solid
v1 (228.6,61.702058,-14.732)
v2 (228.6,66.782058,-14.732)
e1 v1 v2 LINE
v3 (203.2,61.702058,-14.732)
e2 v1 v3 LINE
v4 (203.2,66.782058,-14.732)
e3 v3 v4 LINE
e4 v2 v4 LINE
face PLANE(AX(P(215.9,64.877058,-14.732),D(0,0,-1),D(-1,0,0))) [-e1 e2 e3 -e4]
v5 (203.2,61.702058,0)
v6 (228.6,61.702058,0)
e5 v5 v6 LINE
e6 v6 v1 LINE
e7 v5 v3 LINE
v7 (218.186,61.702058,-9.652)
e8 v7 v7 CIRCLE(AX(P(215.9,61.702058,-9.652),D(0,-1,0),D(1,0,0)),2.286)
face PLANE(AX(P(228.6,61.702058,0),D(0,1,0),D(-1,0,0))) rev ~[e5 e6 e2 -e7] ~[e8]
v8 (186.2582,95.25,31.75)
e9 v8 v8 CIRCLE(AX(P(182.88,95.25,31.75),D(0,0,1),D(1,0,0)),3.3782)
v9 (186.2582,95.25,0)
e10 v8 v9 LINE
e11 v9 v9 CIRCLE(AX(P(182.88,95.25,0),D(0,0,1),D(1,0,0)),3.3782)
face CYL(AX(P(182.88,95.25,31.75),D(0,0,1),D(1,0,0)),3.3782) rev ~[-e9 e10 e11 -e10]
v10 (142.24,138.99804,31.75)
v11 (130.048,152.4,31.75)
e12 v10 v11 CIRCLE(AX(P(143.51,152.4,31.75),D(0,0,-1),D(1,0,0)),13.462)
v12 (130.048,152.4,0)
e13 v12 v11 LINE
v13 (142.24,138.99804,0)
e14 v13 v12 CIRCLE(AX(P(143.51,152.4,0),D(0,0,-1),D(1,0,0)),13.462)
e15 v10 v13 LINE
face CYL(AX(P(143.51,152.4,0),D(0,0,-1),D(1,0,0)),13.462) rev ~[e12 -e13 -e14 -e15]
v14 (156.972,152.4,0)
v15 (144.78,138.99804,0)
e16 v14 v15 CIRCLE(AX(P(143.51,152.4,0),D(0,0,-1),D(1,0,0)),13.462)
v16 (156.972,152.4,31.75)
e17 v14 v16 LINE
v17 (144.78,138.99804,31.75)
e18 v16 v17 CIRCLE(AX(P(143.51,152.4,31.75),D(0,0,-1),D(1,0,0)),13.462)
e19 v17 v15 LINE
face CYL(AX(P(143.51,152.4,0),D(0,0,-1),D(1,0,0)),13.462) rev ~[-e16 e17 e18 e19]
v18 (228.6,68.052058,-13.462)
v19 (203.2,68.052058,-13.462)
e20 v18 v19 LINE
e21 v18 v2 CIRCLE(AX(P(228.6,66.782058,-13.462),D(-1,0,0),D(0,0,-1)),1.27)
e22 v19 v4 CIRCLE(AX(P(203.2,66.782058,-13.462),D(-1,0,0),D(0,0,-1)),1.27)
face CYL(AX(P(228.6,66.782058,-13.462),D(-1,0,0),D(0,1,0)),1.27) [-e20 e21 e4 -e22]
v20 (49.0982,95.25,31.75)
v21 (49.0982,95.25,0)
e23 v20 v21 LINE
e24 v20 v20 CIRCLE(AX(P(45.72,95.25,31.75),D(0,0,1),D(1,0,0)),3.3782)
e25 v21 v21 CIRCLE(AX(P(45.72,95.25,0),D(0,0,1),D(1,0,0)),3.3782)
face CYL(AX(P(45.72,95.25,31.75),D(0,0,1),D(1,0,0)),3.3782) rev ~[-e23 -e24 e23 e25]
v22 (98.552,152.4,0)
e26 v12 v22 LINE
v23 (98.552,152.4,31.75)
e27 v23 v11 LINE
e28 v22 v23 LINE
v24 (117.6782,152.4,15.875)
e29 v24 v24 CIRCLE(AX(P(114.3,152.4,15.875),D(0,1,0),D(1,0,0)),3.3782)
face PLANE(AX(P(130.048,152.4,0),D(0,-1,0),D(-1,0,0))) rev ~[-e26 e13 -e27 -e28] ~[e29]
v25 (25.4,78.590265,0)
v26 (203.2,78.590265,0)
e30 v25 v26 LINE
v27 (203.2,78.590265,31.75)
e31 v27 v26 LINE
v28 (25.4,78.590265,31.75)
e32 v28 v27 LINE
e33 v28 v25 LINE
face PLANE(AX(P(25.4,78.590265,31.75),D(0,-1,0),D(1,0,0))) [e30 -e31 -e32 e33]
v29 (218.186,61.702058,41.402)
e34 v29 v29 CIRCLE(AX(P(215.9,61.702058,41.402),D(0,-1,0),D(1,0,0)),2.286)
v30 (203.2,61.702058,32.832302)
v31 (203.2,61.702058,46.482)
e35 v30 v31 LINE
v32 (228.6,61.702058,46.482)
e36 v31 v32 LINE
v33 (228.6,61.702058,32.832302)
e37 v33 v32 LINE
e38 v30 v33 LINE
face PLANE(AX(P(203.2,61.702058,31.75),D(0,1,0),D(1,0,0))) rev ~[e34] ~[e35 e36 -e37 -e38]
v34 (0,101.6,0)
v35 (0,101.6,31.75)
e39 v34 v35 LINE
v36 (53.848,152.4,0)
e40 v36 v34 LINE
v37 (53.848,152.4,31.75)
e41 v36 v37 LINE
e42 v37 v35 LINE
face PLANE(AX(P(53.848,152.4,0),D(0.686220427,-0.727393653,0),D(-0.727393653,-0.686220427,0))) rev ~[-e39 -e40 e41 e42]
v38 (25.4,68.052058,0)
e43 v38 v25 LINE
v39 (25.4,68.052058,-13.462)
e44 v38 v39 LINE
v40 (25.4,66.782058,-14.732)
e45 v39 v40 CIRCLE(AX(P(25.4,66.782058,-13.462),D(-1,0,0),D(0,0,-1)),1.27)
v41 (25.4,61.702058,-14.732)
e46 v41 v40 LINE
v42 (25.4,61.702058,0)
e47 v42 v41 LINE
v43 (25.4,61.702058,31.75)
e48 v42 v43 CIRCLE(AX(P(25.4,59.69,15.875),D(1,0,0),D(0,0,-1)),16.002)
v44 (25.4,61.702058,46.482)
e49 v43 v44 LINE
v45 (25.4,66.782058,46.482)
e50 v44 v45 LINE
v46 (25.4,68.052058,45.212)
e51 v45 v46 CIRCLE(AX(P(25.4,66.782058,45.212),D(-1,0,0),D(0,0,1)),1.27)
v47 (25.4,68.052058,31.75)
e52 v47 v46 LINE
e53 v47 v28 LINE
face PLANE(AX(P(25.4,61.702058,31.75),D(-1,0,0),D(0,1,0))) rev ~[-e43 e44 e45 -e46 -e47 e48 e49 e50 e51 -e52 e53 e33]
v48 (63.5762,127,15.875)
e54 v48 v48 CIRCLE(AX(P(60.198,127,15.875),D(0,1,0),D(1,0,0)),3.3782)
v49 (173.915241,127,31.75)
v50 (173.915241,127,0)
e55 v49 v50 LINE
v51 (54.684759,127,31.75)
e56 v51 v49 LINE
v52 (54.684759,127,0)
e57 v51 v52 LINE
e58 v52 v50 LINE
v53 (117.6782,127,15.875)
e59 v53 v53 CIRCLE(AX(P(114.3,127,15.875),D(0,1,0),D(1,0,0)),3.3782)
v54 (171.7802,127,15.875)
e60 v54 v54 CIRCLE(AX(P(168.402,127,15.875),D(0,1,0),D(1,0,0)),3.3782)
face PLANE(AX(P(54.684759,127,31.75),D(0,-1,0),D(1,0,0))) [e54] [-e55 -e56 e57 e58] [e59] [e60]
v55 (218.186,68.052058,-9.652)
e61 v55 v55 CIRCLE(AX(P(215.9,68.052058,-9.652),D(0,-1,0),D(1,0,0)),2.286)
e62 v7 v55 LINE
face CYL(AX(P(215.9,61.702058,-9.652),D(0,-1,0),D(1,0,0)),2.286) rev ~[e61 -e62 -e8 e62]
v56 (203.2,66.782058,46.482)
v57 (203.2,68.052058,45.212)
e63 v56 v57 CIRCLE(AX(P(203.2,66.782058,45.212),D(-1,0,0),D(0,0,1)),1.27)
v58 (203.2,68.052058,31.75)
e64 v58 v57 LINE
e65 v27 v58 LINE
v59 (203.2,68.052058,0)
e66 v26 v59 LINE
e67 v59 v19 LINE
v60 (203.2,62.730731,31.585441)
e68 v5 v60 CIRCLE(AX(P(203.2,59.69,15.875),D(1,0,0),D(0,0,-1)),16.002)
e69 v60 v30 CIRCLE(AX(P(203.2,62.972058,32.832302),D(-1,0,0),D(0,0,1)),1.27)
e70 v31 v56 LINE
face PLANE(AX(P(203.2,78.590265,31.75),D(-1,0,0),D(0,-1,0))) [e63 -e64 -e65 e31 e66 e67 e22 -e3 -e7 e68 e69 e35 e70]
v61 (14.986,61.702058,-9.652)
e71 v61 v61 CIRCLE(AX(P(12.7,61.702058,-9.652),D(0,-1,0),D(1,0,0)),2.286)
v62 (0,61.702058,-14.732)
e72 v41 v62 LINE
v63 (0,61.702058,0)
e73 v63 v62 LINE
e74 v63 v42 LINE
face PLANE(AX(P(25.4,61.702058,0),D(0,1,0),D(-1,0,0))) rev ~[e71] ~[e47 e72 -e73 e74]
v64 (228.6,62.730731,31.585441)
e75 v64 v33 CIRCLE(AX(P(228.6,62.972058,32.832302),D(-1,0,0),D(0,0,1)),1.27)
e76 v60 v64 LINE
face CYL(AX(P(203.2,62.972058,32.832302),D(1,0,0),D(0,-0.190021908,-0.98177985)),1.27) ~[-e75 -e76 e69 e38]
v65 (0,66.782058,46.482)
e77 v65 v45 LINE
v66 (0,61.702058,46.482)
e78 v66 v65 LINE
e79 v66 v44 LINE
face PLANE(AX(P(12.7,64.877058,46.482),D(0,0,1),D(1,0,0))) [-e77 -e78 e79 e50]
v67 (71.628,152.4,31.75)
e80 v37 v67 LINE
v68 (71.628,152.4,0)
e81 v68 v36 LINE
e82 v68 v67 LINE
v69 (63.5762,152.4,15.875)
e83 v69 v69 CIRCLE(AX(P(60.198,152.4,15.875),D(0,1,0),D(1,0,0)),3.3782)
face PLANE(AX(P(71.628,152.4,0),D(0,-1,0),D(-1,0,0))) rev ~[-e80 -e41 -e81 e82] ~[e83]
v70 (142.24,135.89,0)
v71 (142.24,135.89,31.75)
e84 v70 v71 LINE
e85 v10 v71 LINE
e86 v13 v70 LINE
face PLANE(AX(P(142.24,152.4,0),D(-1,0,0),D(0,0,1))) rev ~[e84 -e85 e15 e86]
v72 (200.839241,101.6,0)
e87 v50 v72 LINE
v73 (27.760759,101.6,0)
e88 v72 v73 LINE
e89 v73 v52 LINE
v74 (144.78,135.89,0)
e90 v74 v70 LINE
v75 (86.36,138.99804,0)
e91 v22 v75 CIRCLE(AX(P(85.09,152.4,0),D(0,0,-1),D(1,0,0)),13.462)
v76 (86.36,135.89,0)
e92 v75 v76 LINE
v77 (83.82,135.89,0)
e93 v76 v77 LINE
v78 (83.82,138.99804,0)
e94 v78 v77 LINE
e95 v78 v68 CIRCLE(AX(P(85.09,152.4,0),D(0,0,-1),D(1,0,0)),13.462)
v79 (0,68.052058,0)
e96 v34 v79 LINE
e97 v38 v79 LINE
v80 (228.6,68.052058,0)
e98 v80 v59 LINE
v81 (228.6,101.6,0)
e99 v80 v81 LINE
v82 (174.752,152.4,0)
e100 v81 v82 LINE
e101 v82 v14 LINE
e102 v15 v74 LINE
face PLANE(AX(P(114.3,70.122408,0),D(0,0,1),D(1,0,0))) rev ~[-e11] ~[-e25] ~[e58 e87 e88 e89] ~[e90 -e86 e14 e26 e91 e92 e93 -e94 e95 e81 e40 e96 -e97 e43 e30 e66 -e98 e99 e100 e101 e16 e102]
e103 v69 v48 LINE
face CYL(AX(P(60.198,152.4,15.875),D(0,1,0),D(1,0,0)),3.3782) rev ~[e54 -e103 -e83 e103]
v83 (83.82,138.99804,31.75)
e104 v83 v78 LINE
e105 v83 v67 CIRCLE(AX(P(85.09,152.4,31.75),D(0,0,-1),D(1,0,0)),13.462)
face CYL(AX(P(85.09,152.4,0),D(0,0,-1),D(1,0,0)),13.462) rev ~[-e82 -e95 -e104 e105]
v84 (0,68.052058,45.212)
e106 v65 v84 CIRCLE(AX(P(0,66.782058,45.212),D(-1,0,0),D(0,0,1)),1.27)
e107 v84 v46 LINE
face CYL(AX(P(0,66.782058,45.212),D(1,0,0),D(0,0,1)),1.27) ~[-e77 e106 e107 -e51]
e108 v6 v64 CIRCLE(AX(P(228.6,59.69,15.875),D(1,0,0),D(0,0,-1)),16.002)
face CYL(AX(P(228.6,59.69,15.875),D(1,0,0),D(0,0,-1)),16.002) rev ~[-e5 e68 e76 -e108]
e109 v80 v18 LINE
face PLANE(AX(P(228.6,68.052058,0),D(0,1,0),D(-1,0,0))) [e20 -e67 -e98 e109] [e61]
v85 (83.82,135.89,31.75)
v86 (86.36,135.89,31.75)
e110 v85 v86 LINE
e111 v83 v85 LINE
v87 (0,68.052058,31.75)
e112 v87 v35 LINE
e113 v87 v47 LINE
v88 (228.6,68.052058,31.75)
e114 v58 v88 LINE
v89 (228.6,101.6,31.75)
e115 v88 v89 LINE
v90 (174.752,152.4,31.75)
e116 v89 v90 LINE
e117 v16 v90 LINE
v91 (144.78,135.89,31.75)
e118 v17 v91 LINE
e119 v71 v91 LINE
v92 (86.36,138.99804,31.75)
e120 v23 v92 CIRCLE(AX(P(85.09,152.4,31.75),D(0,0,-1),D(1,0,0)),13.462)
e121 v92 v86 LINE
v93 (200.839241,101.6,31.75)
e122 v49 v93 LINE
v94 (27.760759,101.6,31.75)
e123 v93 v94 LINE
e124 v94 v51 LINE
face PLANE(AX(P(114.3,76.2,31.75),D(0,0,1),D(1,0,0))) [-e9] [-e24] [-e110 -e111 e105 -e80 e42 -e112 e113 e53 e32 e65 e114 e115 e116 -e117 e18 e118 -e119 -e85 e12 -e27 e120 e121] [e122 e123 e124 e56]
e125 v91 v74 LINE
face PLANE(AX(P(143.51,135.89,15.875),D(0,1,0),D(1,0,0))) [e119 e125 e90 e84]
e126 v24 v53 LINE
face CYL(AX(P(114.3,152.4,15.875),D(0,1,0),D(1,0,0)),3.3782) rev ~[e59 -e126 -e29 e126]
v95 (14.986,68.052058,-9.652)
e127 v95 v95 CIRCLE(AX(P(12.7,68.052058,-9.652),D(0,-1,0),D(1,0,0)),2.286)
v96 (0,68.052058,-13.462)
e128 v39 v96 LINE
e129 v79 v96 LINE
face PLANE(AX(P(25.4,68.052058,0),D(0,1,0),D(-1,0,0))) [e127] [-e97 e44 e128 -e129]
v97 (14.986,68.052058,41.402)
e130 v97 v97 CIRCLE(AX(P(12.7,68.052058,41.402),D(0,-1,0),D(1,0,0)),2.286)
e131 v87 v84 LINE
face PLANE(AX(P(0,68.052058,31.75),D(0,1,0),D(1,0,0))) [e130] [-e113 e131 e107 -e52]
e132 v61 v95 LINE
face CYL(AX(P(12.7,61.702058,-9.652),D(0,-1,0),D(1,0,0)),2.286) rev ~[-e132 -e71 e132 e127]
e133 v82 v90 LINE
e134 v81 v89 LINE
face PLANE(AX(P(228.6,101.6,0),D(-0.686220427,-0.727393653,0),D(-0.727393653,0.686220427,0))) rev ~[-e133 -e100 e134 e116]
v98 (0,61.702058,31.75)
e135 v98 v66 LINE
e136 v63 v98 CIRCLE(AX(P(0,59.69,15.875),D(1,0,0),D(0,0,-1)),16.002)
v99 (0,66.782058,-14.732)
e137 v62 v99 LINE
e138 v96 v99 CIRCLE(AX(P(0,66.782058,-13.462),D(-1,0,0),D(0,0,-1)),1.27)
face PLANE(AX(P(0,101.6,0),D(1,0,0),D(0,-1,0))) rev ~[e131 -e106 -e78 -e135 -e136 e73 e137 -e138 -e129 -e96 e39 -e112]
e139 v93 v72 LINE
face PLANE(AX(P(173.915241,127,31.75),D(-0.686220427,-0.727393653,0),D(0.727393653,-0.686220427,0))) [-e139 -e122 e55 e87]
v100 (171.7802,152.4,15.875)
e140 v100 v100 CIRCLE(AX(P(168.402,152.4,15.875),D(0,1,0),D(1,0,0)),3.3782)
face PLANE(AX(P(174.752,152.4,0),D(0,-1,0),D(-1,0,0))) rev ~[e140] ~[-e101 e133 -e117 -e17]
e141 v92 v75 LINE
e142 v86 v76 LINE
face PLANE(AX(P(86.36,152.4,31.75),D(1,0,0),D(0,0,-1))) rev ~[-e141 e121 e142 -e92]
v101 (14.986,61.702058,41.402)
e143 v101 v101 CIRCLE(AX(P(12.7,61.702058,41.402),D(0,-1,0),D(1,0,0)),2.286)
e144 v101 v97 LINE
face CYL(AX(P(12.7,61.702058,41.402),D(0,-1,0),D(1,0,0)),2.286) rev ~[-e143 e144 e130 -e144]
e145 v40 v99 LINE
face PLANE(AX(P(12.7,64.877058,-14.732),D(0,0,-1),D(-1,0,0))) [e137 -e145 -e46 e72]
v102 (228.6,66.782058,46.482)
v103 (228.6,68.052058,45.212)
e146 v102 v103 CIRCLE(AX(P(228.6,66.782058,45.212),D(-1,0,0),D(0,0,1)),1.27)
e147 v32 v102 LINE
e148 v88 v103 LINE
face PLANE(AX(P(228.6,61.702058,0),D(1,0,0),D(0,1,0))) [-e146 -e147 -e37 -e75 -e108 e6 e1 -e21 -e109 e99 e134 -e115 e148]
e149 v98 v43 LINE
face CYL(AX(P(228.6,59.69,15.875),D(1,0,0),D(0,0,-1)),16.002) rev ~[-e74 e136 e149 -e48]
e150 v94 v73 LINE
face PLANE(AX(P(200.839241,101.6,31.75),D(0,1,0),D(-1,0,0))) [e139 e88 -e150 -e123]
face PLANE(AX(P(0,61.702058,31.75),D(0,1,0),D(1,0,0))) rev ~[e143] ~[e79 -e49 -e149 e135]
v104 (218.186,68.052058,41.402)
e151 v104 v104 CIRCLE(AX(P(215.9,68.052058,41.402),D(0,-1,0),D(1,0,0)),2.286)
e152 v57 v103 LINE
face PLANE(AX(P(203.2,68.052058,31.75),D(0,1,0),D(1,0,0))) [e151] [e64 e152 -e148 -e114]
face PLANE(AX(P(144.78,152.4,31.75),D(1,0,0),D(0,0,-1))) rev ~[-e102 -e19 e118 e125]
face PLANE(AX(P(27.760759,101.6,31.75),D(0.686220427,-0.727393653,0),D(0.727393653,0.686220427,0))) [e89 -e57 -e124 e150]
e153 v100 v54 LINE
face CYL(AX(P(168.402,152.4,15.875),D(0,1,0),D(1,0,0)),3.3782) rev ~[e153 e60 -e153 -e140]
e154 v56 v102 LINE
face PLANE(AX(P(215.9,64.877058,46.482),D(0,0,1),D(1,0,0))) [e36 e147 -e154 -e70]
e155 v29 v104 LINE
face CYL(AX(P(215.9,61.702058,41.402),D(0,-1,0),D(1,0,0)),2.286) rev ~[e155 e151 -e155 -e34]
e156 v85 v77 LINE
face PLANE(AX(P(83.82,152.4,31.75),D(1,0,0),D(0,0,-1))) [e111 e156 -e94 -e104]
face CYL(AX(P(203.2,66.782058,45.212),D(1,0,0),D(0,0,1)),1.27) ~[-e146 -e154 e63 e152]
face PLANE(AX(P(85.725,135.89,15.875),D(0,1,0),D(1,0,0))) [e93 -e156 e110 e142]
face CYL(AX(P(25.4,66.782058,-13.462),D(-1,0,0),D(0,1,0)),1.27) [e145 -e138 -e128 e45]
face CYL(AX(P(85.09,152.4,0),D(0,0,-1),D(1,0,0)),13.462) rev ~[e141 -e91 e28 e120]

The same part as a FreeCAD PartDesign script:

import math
import FreeCAD as App
import Part
import Sketcher
from FreeCAD import Vector
Q = App.Units.Quantity


def edges_at(feature, points):
    """Names of the edges that pass closest to the given points."""
    edges = feature.Shape.Edges
    near = lambda p: min(range(len(edges)), key=lambda i: edges[i].distToShape(Part.Vertex(*p))[0])
    return sorted({f"Edge{near(p) + 1}" for p in points})

doc = App.newDocument("Part")
params = doc.addObject("Spreadsheet::Sheet", "Params")
for row, (alias, value) in enumerate([
    ("sketch1_width", "9 in"),
    ("sketch1_height", "4 in"),
    ("sketch1_radius", "0.53 in"),
    ("sketch1_width2", "0.7 in"),
    ("pad1_length", "2 in"),
    ("sketch2_width", "9 in"),
    ("sketch2_height", "6 in"),
    ("pocket1_length", "0.75 in"),
    ("sketch3_diameter", "0.266 in"),
    ("pocket2_length", "1.1 in"),
    ("pocket3_length", "1.6 in"),
    ("sketch5_width", "0.1 in"),
    ("sketch5_height", "1.25 in"),
    ("pocket4_length", "0.65 in"),
    ("sketch6_diameter", "0.266 in"),
    ("sketch7_diameter", "0.266 in"),
    ("sketch8_width", "9 in"),
    ("sketch8_height", "2.35 in"),
    ("sketch9_diameter", "1.26 in"),
    ("sketch10_width", "1 in"),
    ("sketch10_height", "0.25 in"),
    ("pad2_length", "0.58 in"),
    ("sketch11_width", "1 in"),
    ("sketch11_height", "0.25 in"),
    ("pad3_length", "0.58 in"),
    ("fillet_radius", "0.05 in"),
    ("fillet2_radius", "0.05 in"),
    ("fillet3_radius", "0.05 in"),
    ("fillet4_radius", "0.05 in"),
    ("sketch12_width", "7 in"),
    ("fillet5_radius", "0.05 in"),
    ("sketch13_diameter", "0.18 in"),
], start=1):
    params.set(f"A{row}", alias)
    params.set(f"B{row}", "=" + value)
    params.setAlias(f"B{row}", alias)

body = doc.addObject("PartDesign::Body", "Body")

sketch1 = doc.addObject("Sketcher::SketchObject", "Sketch")
body.addObject(sketch1)
sketch1.AttachmentSupport = (doc.XY_Plane, [""])
sketch1.MapMode = "FlatFace"
sketch1.addGeometry([
    Part.LineSegment(Vector(228.6, 0, 0), Vector(228.6, 101.6, 0)),
    Part.LineSegment(Vector(228.6, 101.6, 0), Vector(174.752, 152.4, 0)),
    Part.LineSegment(Vector(174.752, 152.4, 0), Vector(156.972, 152.4, 0)),
    Part.ArcOfCircle(Part.Circle(Vector(143.51, 152.4, 0), Vector(0, 0, 1), 13.462), math.radians(180), math.radians(360)),
    Part.LineSegment(Vector(130.048, 152.4, 0), Vector(98.552, 152.4, 0)),
    Part.ArcOfCircle(Part.Circle(Vector(85.09, 152.4, 0), Vector(0, 0, 1), 13.462), math.radians(180), math.radians(360)),
    Part.LineSegment(Vector(71.628, 152.4, 0), Vector(53.848, 152.4, 0)),
    Part.LineSegment(Vector(53.848, 152.4, 0), Vector(0, 101.6, 0)),
    Part.LineSegment(Vector(0, 101.6, 0), Vector(0, 0, 0)),
    Part.LineSegment(Vector(0, 0, 0), Vector(228.6, 0, 0)),
], False)
sketch1.addConstraint([
    Sketcher.Constraint("Coincident", 0, 2, 1, 1),
    Sketcher.Constraint("Coincident", 1, 2, 2, 1),
    Sketcher.Constraint("Coincident", 2, 2, 3, 2),
    Sketcher.Constraint("Coincident", 3, 1, 4, 1),
    Sketcher.Constraint("Coincident", 4, 2, 5, 2),
    Sketcher.Constraint("Coincident", 5, 1, 6, 1),
    Sketcher.Constraint("Coincident", 6, 2, 7, 1),
    Sketcher.Constraint("Coincident", 7, 2, 8, 1),
    Sketcher.Constraint("Coincident", 8, 2, 9, 1),
    Sketcher.Constraint("Coincident", 9, 2, 0, 1),
    Sketcher.Constraint("Vertical", 0),
    Sketcher.Constraint("Horizontal", 2),
    Sketcher.Constraint("Horizontal", 4),
    Sketcher.Constraint("Horizontal", 6),
    Sketcher.Constraint("Vertical", 8),
    Sketcher.Constraint("Horizontal", 9),
    Sketcher.Constraint("Coincident", 8, 2, -1, 1),
    Sketcher.Constraint("Equal", 3, 5),
    Sketcher.Constraint("Horizontal", 3, 3, 5, 3),
    Sketcher.Constraint("Horizontal", 5, 3, 1, 2),
    Sketcher.Constraint("Horizontal", 2, 2, 3, 1),
    Sketcher.Constraint("Horizontal", 4, 2, 5, 1),
    Sketcher.Constraint("Horizontal", 0, 2, 7, 2),
    Sketcher.Constraint("Equal", 2, 6),
    Sketcher.Constraint("Equal", 1, 7),
    Sketcher.Constraint("DistanceX", 9, 1, 9, 2, Q("9 in")),
    Sketcher.Constraint("DistanceY", 0, 1, 0, 2, Q("4 in")),
    Sketcher.Constraint("Radius", 3, Q("0.53 in")),
    Sketcher.Constraint("DistanceX", 2, 2, 2, 1, Q("0.7 in")),
    Sketcher.Constraint("DistanceY", -1, 1, 3, 3, Q("6 in")),
    Sketcher.Constraint("DistanceX", 4, 2, 1, 2, Q("3 in")),
])
sketch1.setExpression("Constraints[25]", "Params.sketch1_width")
sketch1.setExpression("Constraints[26]", "Params.sketch1_height")
sketch1.setExpression("Constraints[27]", "Params.sketch1_radius")
sketch1.setExpression("Constraints[28]", "Params.sketch1_width2")
pad1 = doc.addObject("PartDesign::Pad", "Pad")
body.addObject(pad1)
pad1.Profile = sketch1
pad1.setExpression("Length", "Params.pad1_length")

sketch2 = doc.addObject("Sketcher::SketchObject", "Sketch001")
body.addObject(sketch2)
sketch2.AttachmentSupport = (doc.XY_Plane, [""])
sketch2.MapMode = "FlatFace"
sketch2.AttachmentOffset = App.Placement(Vector(0, 0, 2 * 25.4), App.Rotation())
sketch2.addGeometry([
    Part.LineSegment(Vector(0, 152.4, 0), Vector(0, 0, 0)),
    Part.LineSegment(Vector(0, 0, 0), Vector(228.6, 0, 0)),
    Part.LineSegment(Vector(228.6, 0, 0), Vector(228.6, 152.4, 0)),
    Part.LineSegment(Vector(228.6, 152.4, 0), Vector(0, 152.4, 0)),
], False)
sketch2.addConstraint([
    Sketcher.Constraint("Coincident", 0, 2, 1, 1),
    Sketcher.Constraint("Coincident", 1, 2, 2, 1),
    Sketcher.Constraint("Coincident", 2, 2, 3, 1),
    Sketcher.Constraint("Coincident", 3, 2, 0, 1),
    Sketcher.Constraint("Vertical", 0),
    Sketcher.Constraint("Horizontal", 1),
    Sketcher.Constraint("Vertical", 2),
    Sketcher.Constraint("Horizontal", 3),
    Sketcher.Constraint("Coincident", 0, 2, -1, 1),
    Sketcher.Constraint("DistanceX", 1, 1, 1, 2, Q("9 in")),
    Sketcher.Constraint("DistanceY", 0, 2, 0, 1, Q("6 in")),
])
sketch2.setExpression("Constraints[9]", "Params.sketch2_width")
sketch2.setExpression("Constraints[10]", "Params.sketch2_height")
pocket1 = doc.addObject("PartDesign::Pocket", "Pocket")
body.addObject(pocket1)
pocket1.Profile = sketch2
pocket1.setExpression("Length", "Params.pocket1_length")

sketch3 = doc.addObject("Sketcher::SketchObject", "Sketch002")
body.addObject(sketch3)
sketch3.AttachmentSupport = (doc.XZ_Plane, [""])
sketch3.MapMode = "FlatFace"
sketch3.AttachmentOffset = App.Placement(Vector(0, 0, -6 * 25.4), App.Rotation())
sketch3.addGeometry([
    Part.Circle(Vector(60.198, 15.875, 0), Vector(0, 0, 1), 3.3782),
    Part.Circle(Vector(114.3, 15.875, 0), Vector(0, 0, 1), 3.3782),
    Part.Circle(Vector(168.402, 15.875, 0), Vector(0, 0, 1), 3.3782),
], False)
sketch3.addConstraint([
    Sketcher.Constraint("Equal", 0, 1),
    Sketcher.Constraint("Equal", 1, 2),
    Sketcher.Constraint("Horizontal", 0, 3, 1, 3),
    Sketcher.Constraint("Horizontal", 1, 3, 2, 3),
    Sketcher.Constraint("Diameter", 0, Q("0.266 in")),
    Sketcher.Constraint("DistanceX", -1, 1, 1, 3, Q("4.5 in")),
    Sketcher.Constraint("DistanceX", -1, 1, 0, 3, Q("2.37 in")),
    Sketcher.Constraint("DistanceX", -1, 1, 2, 3, Q("6.63 in")),
    Sketcher.Constraint("DistanceY", -1, 1, 0, 3, Q("0.625 in")),
])
sketch3.setExpression("Constraints[4]", "Params.sketch3_diameter")
pocket2 = doc.addObject("PartDesign::Pocket", "Pocket001")
body.addObject(pocket2)
pocket2.Profile = sketch3
pocket2.setExpression("Length", "Params.pocket2_length")
pocket2.Reversed = True

sketch4 = doc.addObject("Sketcher::SketchObject", "Sketch003")
body.addObject(sketch4)
sketch4.AttachmentSupport = (doc.XY_Plane, [""])
sketch4.MapMode = "FlatFace"
sketch4.AttachmentOffset = App.Placement(Vector(0, 0, 1.25 * 25.4), App.Rotation())
sketch4.addGeometry([
    Part.LineSegment(Vector(54.684759, 127, 0), Vector(27.760759, 101.6, 0)),
    Part.LineSegment(Vector(27.760759, 101.6, 0), Vector(200.839241, 101.6, 0)),
    Part.LineSegment(Vector(200.839241, 101.6, 0), Vector(173.915241, 127, 0)),
    Part.LineSegment(Vector(173.915241, 127, 0), Vector(54.684759, 127, 0)),
], False)
sketch4.addConstraint([
    Sketcher.Constraint("Coincident", 0, 2, 1, 1),
    Sketcher.Constraint("Coincident", 1, 2, 2, 1),
    Sketcher.Constraint("Coincident", 2, 2, 3, 1),
    Sketcher.Constraint("Coincident", 3, 2, 0, 1),
    Sketcher.Constraint("Horizontal", 1),
    Sketcher.Constraint("Horizontal", 3),
    Sketcher.Constraint("Equal", 0, 2),
    Sketcher.Constraint("DistanceY", -1, 1, 0, 2, Q("4 in")),
    Sketcher.Constraint("DistanceY", -1, 1, 2, 2, Q("5 in")),
    Sketcher.Constraint("DistanceX", 2, 2, 1, 2, Q("1.06 in")),
    Sketcher.Constraint("DistanceX", 1, 1, 1, 2, 173.078482),
    Sketcher.Constraint("DistanceX", -1, 1, 0, 2, 27.760759),
])
pocket3 = doc.addObject("PartDesign::Pocket", "Pocket002")
body.addObject(pocket3)
pocket3.Profile = sketch4
pocket3.setExpression("Length", "Params.pocket3_length")

sketch5 = doc.addObject("Sketcher::SketchObject", "Sketch004")
body.addObject(sketch5)
sketch5.AttachmentSupport = (doc.XZ_Plane, [""])
sketch5.MapMode = "FlatFace"
sketch5.AttachmentOffset = App.Placement(Vector(0, 0, -6 * 25.4), App.Rotation())
sketch5.addGeometry([
    Part.LineSegment(Vector(86.36, 31.75, 0), Vector(86.36, 0, 0)),
    Part.LineSegment(Vector(86.36, 0, 0), Vector(83.82, 0, 0)),
    Part.LineSegment(Vector(83.82, 0, 0), Vector(83.82, 31.75, 0)),
    Part.LineSegment(Vector(83.82, 31.75, 0), Vector(86.36, 31.75, 0)),
    Part.LineSegment(Vector(142.24, 0, 0), Vector(142.24, 31.75, 0)),
    Part.LineSegment(Vector(142.24, 31.75, 0), Vector(144.78, 31.75, 0)),
    Part.LineSegment(Vector(144.78, 31.75, 0), Vector(144.78, 0, 0)),
    Part.LineSegment(Vector(144.78, 0, 0), Vector(142.24, 0, 0)),
], False)
sketch5.addConstraint([
    Sketcher.Constraint("Coincident", 0, 2, 1, 1),
    Sketcher.Constraint("Coincident", 1, 2, 2, 1),
    Sketcher.Constraint("Coincident", 2, 2, 3, 1),
    Sketcher.Constraint("Coincident", 3, 2, 0, 1),
    Sketcher.Constraint("Coincident", 4, 2, 5, 1),
    Sketcher.Constraint("Coincident", 5, 2, 6, 1),
    Sketcher.Constraint("Coincident", 6, 2, 7, 1),
    Sketcher.Constraint("Coincident", 7, 2, 4, 1),
    Sketcher.Constraint("Vertical", 0),
    Sketcher.Constraint("Horizontal", 1),
    Sketcher.Constraint("Vertical", 2),
    Sketcher.Constraint("Horizontal", 3),
    Sketcher.Constraint("Vertical", 4),
    Sketcher.Constraint("Horizontal", 5),
    Sketcher.Constraint("Vertical", 6),
    Sketcher.Constraint("Horizontal", 7),
    Sketcher.Constraint("PointOnObject", 0, 2, -1),
    Sketcher.Constraint("PointOnObject", 6, 2, -1),
    Sketcher.Constraint("Horizontal", 3, 2, 4, 2),
    Sketcher.Constraint("Equal", 3, 5),
    Sketcher.Constraint("DistanceX", 1, 2, 1, 1, Q("0.1 in")),
    Sketcher.Constraint("DistanceY", 0, 2, 0, 1, Q("1.25 in")),
    Sketcher.Constraint("DistanceX", -1, 1, 0, 2, Q("3.4 in")),
    Sketcher.Constraint("DistanceX", -1, 1, 4, 2, Q("5.6 in")),
])
sketch5.setExpression("Constraints[20]", "Params.sketch5_width")
sketch5.setExpression("Constraints[21]", "Params.sketch5_height")
pocket4 = doc.addObject("PartDesign::Pocket", "Pocket003")
body.addObject(pocket4)
pocket4.Profile = sketch5
pocket4.setExpression("Length", "Params.pocket4_length")
pocket4.Reversed = True

sketch6 = doc.addObject("Sketcher::SketchObject", "Sketch005")
body.addObject(sketch6)
sketch6.AttachmentSupport = (doc.XY_Plane, [""])
sketch6.MapMode = "FlatFace"
sketch6.AttachmentOffset = App.Placement(Vector(0, 0, 1.25 * 25.4), App.Rotation())
sketch6.addGeometry(Part.Circle(Vector(45.72, 95.25, 0), Vector(0, 0, 1), 3.3782), False)
sketch6.addConstraint([
    Sketcher.Constraint("Diameter", 0, Q("0.266 in")),
    Sketcher.Constraint("DistanceX", -1, 1, 0, 3, Q("1.8 in")),
    Sketcher.Constraint("DistanceY", -1, 1, 0, 3, Q("3.75 in")),
])
sketch6.setExpression("Constraints[0]", "Params.sketch6_diameter")
pocket5 = doc.addObject("PartDesign::Pocket", "Pocket004")
body.addObject(pocket5)
pocket5.Profile = sketch6
pocket5.Type = "UpToFirst"

sketch7 = doc.addObject("Sketcher::SketchObject", "Sketch006")
body.addObject(sketch7)
sketch7.AttachmentSupport = (doc.XY_Plane, [""])
sketch7.MapMode = "FlatFace"
sketch7.AttachmentOffset = App.Placement(Vector(0, 0, 1.25 * 25.4), App.Rotation())
sketch7.addGeometry(Part.Circle(Vector(182.88, 95.25, 0), Vector(0, 0, 1), 3.3782), False)
sketch7.addConstraint([
    Sketcher.Constraint("Diameter", 0, Q("0.266 in")),
    Sketcher.Constraint("DistanceX", -1, 1, 0, 3, Q("7.2 in")),
    Sketcher.Constraint("DistanceY", -1, 1, 0, 3, Q("3.75 in")),
])
sketch7.setExpression("Constraints[0]", "Params.sketch7_diameter")
pocket6 = doc.addObject("PartDesign::Pocket", "Pocket005")
body.addObject(pocket6)
pocket6.Profile = sketch7
pocket6.Type = "UpToFirst"

sketch8 = doc.addObject("Sketcher::SketchObject", "Sketch007")
body.addObject(sketch8)
sketch8.AttachmentSupport = (doc.XY_Plane, [""])
sketch8.MapMode = "FlatFace"
sketch8.addGeometry([
    Part.LineSegment(Vector(228.6, 59.69, 0), Vector(228.6, 0, 0)),
    Part.LineSegment(Vector(228.6, 0, 0), Vector(0, 0, 0)),
    Part.LineSegment(Vector(0, 0, 0), Vector(0, 59.69, 0)),
    Part.LineSegment(Vector(0, 59.69, 0), Vector(228.6, 59.69, 0)),
], False)
sketch8.addConstraint([
    Sketcher.Constraint("Coincident", 0, 2, 1, 1),
    Sketcher.Constraint("Coincident", 1, 2, 2, 1),
    Sketcher.Constraint("Coincident", 2, 2, 3, 1),
    Sketcher.Constraint("Coincident", 3, 2, 0, 1),
    Sketcher.Constraint("Vertical", 0),
    Sketcher.Constraint("Horizontal", 1),
    Sketcher.Constraint("Vertical", 2),
    Sketcher.Constraint("Horizontal", 3),
    Sketcher.Constraint("Coincident", 1, 2, -1, 1),
    Sketcher.Constraint("DistanceX", 1, 2, 1, 1, Q("9 in")),
    Sketcher.Constraint("DistanceY", 0, 2, 0, 1, Q("2.35 in")),
])
sketch8.setExpression("Constraints[9]", "Params.sketch8_width")
sketch8.setExpression("Constraints[10]", "Params.sketch8_height")
pocket7 = doc.addObject("PartDesign::Pocket", "Pocket006")
body.addObject(pocket7)
pocket7.Profile = sketch8
pocket7.Type = "ThroughAll"
pocket7.Reversed = True

sketch9 = doc.addObject("Sketcher::SketchObject", "Sketch008")
body.addObject(sketch9)
sketch9.AttachmentSupport = (doc.YZ_Plane, [""])
sketch9.MapMode = "FlatFace"
sketch9.AttachmentOffset = App.Placement(Vector(0, 0, 9 * 25.4), App.Rotation())
sketch9.addGeometry(Part.Circle(Vector(59.69, 15.875, 0), Vector(0, 0, 1), 16.002), False)
sketch9.addConstraint([
    Sketcher.Constraint("Diameter", 0, Q("1.26 in")),
    Sketcher.Constraint("DistanceX", -1, 1, 0, 3, Q("2.35 in")),
    Sketcher.Constraint("DistanceY", -1, 1, 0, 3, Q("0.625 in")),
])
sketch9.setExpression("Constraints[0]", "Params.sketch9_diameter")
pocket8 = doc.addObject("PartDesign::Pocket", "Pocket007")
body.addObject(pocket8)
pocket8.Profile = sketch9
pocket8.Type = "ThroughAll"

sketch10 = doc.addObject("Sketcher::SketchObject", "Sketch009")
body.addObject(sketch10)
sketch10.AttachmentSupport = (doc.XY_Plane, [""])
sketch10.MapMode = "FlatFace"
sketch10.AttachmentOffset = App.Placement(Vector(0, 0, 1.25 * 25.4), App.Rotation())
sketch10.addGeometry([
    Part.LineSegment(Vector(203.2, 68.052058, 0), Vector(203.2, 61.702058, 0)),
    Part.LineSegment(Vector(203.2, 61.702058, 0), Vector(228.6, 61.702058, 0)),
    Part.LineSegment(Vector(228.6, 61.702058, 0), Vector(228.6, 68.052058, 0)),
    Part.LineSegment(Vector(228.6, 68.052058, 0), Vector(203.2, 68.052058, 0)),
    Part.LineSegment(Vector(0, 68.052058, 0), Vector(0, 61.702058, 0)),
    Part.LineSegment(Vector(0, 61.702058, 0), Vector(25.4, 61.702058, 0)),
    Part.LineSegment(Vector(25.4, 61.702058, 0), Vector(25.4, 68.052058, 0)),
    Part.LineSegment(Vector(25.4, 68.052058, 0), Vector(0, 68.052058, 0)),
], False)
sketch10.addConstraint([
    Sketcher.Constraint("Coincident", 0, 2, 1, 1),
    Sketcher.Constraint("Coincident", 1, 2, 2, 1),
    Sketcher.Constraint("Coincident", 2, 2, 3, 1),
    Sketcher.Constraint("Coincident", 3, 2, 0, 1),
    Sketcher.Constraint("Coincident", 4, 2, 5, 1),
    Sketcher.Constraint("Coincident", 5, 2, 6, 1),
    Sketcher.Constraint("Coincident", 6, 2, 7, 1),
    Sketcher.Constraint("Coincident", 7, 2, 4, 1),
    Sketcher.Constraint("Vertical", 0),
    Sketcher.Constraint("Horizontal", 1),
    Sketcher.Constraint("Vertical", 2),
    Sketcher.Constraint("Horizontal", 3),
    Sketcher.Constraint("Vertical", 4),
    Sketcher.Constraint("Horizontal", 5),
    Sketcher.Constraint("Vertical", 6),
    Sketcher.Constraint("Horizontal", 7),
    Sketcher.Constraint("PointOnObject", 4, 2, -2),
    Sketcher.Constraint("Horizontal", 1, 2, 4, 2),
    Sketcher.Constraint("Horizontal", 3, 2, 6, 2),
    Sketcher.Constraint("Equal", 3, 5),
    Sketcher.Constraint("DistanceX", 1, 1, 1, 2, Q("1 in")),
    Sketcher.Constraint("DistanceX", -1, 1, 0, 2, Q("8 in")),
    Sketcher.Constraint("DistanceY", 0, 2, 0, 1, Q("0.25 in")),
    Sketcher.Constraint("DistanceY", -1, 1, 0, 2, 61.702058),
])
sketch10.setExpression("Constraints[20]", "Params.sketch10_width")
sketch10.setExpression("Constraints[22]", "Params.sketch10_height")
pad2 = doc.addObject("PartDesign::Pad", "Pad001")
body.addObject(pad2)
pad2.Profile = sketch10
pad2.setExpression("Length", "Params.pad2_length")

sketch11 = doc.addObject("Sketcher::SketchObject", "Sketch010")
body.addObject(sketch11)
sketch11.AttachmentSupport = (doc.XY_Plane, [""])
sketch11.MapMode = "FlatFace"
sketch11.addGeometry([
    Part.LineSegment(Vector(228.6, 68.052058, 0), Vector(228.6, 61.702058, 0)),
    Part.LineSegment(Vector(228.6, 61.702058, 0), Vector(203.2, 61.702058, 0)),
    Part.LineSegment(Vector(203.2, 61.702058, 0), Vector(203.2, 68.052058, 0)),
    Part.LineSegment(Vector(203.2, 68.052058, 0), Vector(228.6, 68.052058, 0)),
    Part.LineSegment(Vector(25.4, 68.052058, 0), Vector(25.4, 61.702058, 0)),
    Part.LineSegment(Vector(25.4, 61.702058, 0), Vector(0, 61.702058, 0)),
    Part.LineSegment(Vector(0, 61.702058, 0), Vector(0, 68.052058, 0)),
    Part.LineSegment(Vector(0, 68.052058, 0), Vector(25.4, 68.052058, 0)),
], False)
sketch11.addConstraint([
    Sketcher.Constraint("Coincident", 0, 2, 1, 1),
    Sketcher.Constraint("Coincident", 1, 2, 2, 1),
    Sketcher.Constraint("Coincident", 2, 2, 3, 1),
    Sketcher.Constraint("Coincident", 3, 2, 0, 1),
    Sketcher.Constraint("Coincident", 4, 2, 5, 1),
    Sketcher.Constraint("Coincident", 5, 2, 6, 1),
    Sketcher.Constraint("Coincident", 6, 2, 7, 1),
    Sketcher.Constraint("Coincident", 7, 2, 4, 1),
    Sketcher.Constraint("Vertical", 0),
    Sketcher.Constraint("Horizontal", 1),
    Sketcher.Constraint("Vertical", 2),
    Sketcher.Constraint("Horizontal", 3),
    Sketcher.Constraint("Vertical", 4),
    Sketcher.Constraint("Horizontal", 5),
    Sketcher.Constraint("Vertical", 6),
    Sketcher.Constraint("Horizontal", 7),
    Sketcher.Constraint("PointOnObject", 5, 2, -2),
    Sketcher.Constraint("Horizontal", 1, 2, 4, 2),
    Sketcher.Constraint("Horizontal", 3, 2, 6, 2),
    Sketcher.Constraint("Equal", 3, 5),
    Sketcher.Constraint("DistanceX", 1, 2, 1, 1, Q("1 in")),
    Sketcher.Constraint("DistanceX", -1, 1, 0, 2, Q("9 in")),
    Sketcher.Constraint("DistanceY", 0, 2, 0, 1, Q("0.25 in")),
    Sketcher.Constraint("DistanceY", -1, 1, 0, 2, 61.702058),
])
sketch11.setExpression("Constraints[20]", "Params.sketch11_width")
sketch11.setExpression("Constraints[22]", "Params.sketch11_height")
pad3 = doc.addObject("PartDesign::Pad", "Pad002")
body.addObject(pad3)
pad3.Profile = sketch11
pad3.setExpression("Length", "Params.pad3_length")
pad3.Reversed = True
doc.recompute()

fillet = doc.addObject("PartDesign::Fillet", "Fillet")
body.addObject(fillet)
fillet.Base = (pad3, edges_at(pad3, [(215.9, 68.052, 46.482)]))
fillet.setExpression("Radius", "Params.fillet_radius")
doc.recompute()

fillet2 = doc.addObject("PartDesign::Fillet", "Fillet001")
body.addObject(fillet2)
fillet2.Base = (fillet, edges_at(fillet, [(215.9, 68.052, -14.732)]))
fillet2.setExpression("Radius", "Params.fillet2_radius")
doc.recompute()

fillet3 = doc.addObject("PartDesign::Fillet", "Fillet002")
body.addObject(fillet3)
fillet3.Base = (fillet2, edges_at(fillet2, [(12.7, 68.052, -14.732)]))
fillet3.setExpression("Radius", "Params.fillet3_radius")
doc.recompute()

fillet4 = doc.addObject("PartDesign::Fillet", "Fillet003")
body.addObject(fillet4)
fillet4.Base = (fillet3, edges_at(fillet3, [(12.7, 68.052, 46.482)]))
fillet4.setExpression("Radius", "Params.fillet4_radius")

sketch12 = doc.addObject("Sketcher::SketchObject", "Sketch011")
body.addObject(sketch12)
sketch12.AttachmentSupport = (doc.XY_Plane, [""])
sketch12.MapMode = "FlatFace"
sketch12.AttachmentOffset = App.Placement(Vector(0, 0, 1.25 * 25.4), App.Rotation())
sketch12.addGeometry([
    Part.LineSegment(Vector(25.4, 61.702058, 0), Vector(203.2, 61.702058, 0)),
    Part.LineSegment(Vector(203.2, 61.702058, 0), Vector(203.2, 78.590265, 0)),
    Part.LineSegment(Vector(203.2, 78.590265, 0), Vector(25.4, 78.590265, 0)),
    Part.LineSegment(Vector(25.4, 78.590265, 0), Vector(25.4, 61.702058, 0)),
], False)
sketch12.addConstraint([
    Sketcher.Constraint("Coincident", 0, 2, 1, 1),
    Sketcher.Constraint("Coincident", 1, 2, 2, 1),
    Sketcher.Constraint("Coincident", 2, 2, 3, 1),
    Sketcher.Constraint("Coincident", 3, 2, 0, 1),
    Sketcher.Constraint("Horizontal", 0),
    Sketcher.Constraint("Vertical", 1),
    Sketcher.Constraint("Horizontal", 2),
    Sketcher.Constraint("Vertical", 3),
    Sketcher.Constraint("DistanceX", 0, 1, 0, 2, Q("7 in")),
    Sketcher.Constraint("DistanceX", -1, 1, 0, 2, Q("8 in")),
    Sketcher.Constraint("DistanceY", 1, 1, 1, 2, 16.888207),
    Sketcher.Constraint("DistanceY", -1, 1, 0, 2, 61.702058),
])
sketch12.setExpression("Constraints[8]", "Params.sketch12_width")
pocket9 = doc.addObject("PartDesign::Pocket", "Pocket008")
body.addObject(pocket9)
pocket9.Profile = sketch12
pocket9.Type = "ThroughAll"
doc.recompute()

fillet5 = doc.addObject("PartDesign::Fillet", "Fillet004")
body.addObject(fillet5)
fillet5.Base = (pocket9, edges_at(pocket9, [(215.9, 61.702, 31.75)]))
fillet5.setExpression("Radius", "Params.fillet5_radius")

sketch13 = doc.addObject("Sketcher::SketchObject", "Sketch012")
body.addObject(sketch13)
sketch13.AttachmentSupport = (doc.XZ_Plane, [""])
sketch13.MapMode = "FlatFace"
sketch13.AttachmentOffset = App.Placement(Vector(0, 0, -61.702058), App.Rotation())
sketch13.addGeometry([
    Part.Circle(Vector(12.7, 41.402, 0), Vector(0, 0, 1), 2.286),
    Part.Circle(Vector(12.7, -9.652, 0), Vector(0, 0, 1), 2.286),
    Part.Circle(Vector(215.9, -9.652, 0), Vector(0, 0, 1), 2.286),
    Part.Circle(Vector(215.9, 41.402, 0), Vector(0, 0, 1), 2.286),
], False)
sketch13.addConstraint([
    Sketcher.Constraint("Equal", 0, 1),
    Sketcher.Constraint("Equal", 1, 2),
    Sketcher.Constraint("Equal", 2, 3),
    Sketcher.Constraint("Horizontal", 1, 3, 2, 3),
    Sketcher.Constraint("Horizontal", 0, 3, 3, 3),
    Sketcher.Constraint("Vertical", 0, 3, 1, 3),
    Sketcher.Constraint("Vertical", 2, 3, 3, 3),
    Sketcher.Constraint("Diameter", 0, Q("0.18 in")),
    Sketcher.Constraint("DistanceX", 1, 3, 2, 3, Q("8 in")),
    Sketcher.Constraint("DistanceX", -1, 1, 0, 3, Q("0.5 in")),
    Sketcher.Constraint("DistanceY", -1, 1, 0, 3, Q("1.63 in")),
    Sketcher.Constraint("DistanceY", 1, 3, -1, 1, Q("0.38 in")),
])
sketch13.setExpression("Constraints[7]", "Params.sketch13_diameter")
pocket10 = doc.addObject("PartDesign::Pocket", "Pocket009")
body.addObject(pocket10)
pocket10.Profile = sketch13
pocket10.Type = "ThroughAll"

doc.recompute()
